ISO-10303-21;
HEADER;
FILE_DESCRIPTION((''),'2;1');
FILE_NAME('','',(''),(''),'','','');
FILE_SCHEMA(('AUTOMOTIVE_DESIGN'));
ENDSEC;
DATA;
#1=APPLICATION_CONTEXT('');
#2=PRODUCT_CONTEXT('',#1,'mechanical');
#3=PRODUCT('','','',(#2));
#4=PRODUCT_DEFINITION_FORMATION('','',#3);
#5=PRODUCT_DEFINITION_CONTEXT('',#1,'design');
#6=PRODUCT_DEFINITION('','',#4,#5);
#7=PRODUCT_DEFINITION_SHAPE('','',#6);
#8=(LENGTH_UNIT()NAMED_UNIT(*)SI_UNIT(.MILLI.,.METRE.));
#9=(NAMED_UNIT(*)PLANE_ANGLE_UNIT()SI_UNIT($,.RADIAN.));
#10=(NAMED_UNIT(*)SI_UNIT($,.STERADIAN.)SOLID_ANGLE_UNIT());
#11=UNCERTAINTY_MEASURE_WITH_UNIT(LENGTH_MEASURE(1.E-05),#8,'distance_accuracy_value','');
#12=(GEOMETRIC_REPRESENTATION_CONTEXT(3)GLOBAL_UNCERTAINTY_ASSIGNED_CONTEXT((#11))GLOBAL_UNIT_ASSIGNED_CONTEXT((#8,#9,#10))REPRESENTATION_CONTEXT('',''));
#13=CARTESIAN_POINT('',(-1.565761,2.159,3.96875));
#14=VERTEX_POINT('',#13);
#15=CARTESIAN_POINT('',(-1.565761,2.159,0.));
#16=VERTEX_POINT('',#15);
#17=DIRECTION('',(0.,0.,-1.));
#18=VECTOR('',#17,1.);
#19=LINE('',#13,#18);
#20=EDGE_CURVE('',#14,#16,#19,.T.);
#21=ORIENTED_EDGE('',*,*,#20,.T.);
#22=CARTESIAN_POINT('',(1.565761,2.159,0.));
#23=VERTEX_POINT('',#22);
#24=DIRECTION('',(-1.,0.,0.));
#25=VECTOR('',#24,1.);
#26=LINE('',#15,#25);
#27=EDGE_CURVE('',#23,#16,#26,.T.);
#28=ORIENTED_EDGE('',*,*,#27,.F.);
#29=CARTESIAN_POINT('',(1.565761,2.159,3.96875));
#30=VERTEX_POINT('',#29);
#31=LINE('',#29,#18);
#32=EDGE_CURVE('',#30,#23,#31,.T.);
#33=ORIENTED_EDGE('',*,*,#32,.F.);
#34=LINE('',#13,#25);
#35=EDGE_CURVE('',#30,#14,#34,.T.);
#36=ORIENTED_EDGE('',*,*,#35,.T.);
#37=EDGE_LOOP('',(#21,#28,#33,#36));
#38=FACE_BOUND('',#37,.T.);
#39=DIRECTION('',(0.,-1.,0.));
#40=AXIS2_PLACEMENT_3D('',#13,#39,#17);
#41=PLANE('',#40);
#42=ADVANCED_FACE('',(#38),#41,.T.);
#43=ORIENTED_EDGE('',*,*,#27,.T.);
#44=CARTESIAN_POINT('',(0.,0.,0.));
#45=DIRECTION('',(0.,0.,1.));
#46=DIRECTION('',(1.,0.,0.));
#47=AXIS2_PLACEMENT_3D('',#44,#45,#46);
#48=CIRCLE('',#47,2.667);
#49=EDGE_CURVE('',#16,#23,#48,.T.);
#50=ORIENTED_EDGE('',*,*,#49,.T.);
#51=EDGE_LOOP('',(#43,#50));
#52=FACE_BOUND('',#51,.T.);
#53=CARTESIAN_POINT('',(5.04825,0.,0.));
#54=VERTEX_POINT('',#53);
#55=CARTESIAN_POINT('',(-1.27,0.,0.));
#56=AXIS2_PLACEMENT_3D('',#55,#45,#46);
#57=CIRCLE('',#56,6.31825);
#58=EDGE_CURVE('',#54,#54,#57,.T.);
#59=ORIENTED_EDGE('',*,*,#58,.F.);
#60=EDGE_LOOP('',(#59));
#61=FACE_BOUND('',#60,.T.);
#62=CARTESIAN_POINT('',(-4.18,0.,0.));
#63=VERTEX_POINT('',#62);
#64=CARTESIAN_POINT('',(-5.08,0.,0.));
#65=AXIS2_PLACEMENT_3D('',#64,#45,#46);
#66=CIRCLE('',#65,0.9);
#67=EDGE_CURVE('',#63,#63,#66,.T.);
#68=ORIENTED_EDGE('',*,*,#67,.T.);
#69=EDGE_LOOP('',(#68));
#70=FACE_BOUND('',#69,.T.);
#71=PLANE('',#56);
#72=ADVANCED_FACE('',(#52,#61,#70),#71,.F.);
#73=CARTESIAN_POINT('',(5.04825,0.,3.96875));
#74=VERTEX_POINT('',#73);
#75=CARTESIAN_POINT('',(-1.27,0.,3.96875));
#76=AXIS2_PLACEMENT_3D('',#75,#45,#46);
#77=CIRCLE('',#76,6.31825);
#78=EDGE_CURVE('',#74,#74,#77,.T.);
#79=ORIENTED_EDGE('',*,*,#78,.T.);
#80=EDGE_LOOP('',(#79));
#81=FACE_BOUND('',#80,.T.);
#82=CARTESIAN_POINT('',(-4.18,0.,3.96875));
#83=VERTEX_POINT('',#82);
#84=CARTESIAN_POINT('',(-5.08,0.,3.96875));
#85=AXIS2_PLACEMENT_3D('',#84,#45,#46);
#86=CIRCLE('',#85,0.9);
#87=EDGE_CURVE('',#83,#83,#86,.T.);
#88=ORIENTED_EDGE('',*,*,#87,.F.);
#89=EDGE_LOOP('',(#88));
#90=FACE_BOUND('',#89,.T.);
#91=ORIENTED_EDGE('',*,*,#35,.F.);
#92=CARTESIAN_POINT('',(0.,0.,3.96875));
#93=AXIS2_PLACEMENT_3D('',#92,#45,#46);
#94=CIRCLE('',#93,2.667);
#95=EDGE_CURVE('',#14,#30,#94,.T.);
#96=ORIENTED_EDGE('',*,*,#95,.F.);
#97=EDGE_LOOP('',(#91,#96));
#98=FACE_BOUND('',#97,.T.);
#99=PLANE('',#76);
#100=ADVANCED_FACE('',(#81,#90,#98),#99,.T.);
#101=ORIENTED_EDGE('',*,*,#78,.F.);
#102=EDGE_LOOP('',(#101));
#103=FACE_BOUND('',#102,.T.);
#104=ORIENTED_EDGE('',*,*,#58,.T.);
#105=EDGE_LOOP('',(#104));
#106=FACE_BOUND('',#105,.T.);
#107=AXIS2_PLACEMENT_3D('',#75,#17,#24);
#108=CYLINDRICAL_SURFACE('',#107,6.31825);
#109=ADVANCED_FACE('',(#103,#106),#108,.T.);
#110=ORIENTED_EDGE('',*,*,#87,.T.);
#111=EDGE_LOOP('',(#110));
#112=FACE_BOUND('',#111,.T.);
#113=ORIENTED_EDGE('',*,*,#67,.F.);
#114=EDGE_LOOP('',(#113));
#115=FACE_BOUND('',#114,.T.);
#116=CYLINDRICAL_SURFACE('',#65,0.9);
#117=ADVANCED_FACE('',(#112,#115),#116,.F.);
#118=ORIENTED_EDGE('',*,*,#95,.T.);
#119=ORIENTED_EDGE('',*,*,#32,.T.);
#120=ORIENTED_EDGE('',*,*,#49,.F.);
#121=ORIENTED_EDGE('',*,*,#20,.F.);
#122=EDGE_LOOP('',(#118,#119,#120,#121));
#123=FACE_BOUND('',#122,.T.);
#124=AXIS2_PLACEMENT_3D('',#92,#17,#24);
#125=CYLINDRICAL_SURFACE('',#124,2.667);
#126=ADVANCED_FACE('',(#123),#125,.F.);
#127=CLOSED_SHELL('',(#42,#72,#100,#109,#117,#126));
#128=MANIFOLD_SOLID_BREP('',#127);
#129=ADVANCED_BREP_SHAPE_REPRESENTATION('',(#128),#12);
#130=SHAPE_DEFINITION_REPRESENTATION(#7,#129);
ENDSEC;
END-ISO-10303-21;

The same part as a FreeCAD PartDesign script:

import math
import FreeCAD as App
import Part
import Sketcher
from FreeCAD import Vector
Q = App.Units.Quantity

doc = App.newDocument("Part")
body = doc.addObject("PartDesign::Body", "Body")

# Sketch on XY plane
sketch1 = doc.addObject("Sketcher::SketchObject", "Sketch")
body.addObject(sketch1)
sketch1.AttachmentSupport = (doc.XY_Plane, [""])
sketch1.MapMode = "FlatFace"
sketch1.addGeometry([
    Part.Circle(Vector(-1.3, 0, 0), Vector(0, 0, 1), 6.3),
    Part.ArcOfCircle(Part.Circle(Vector(0, 0, 0), Vector(0, 0, 1), 2.7), math.radians(126), math.radians(414)),
    Part.LineSegment(Vector(-1.6, 2.2, 0), Vector(1.6, 2.2, 0)),
], False)
sketch1.addConstraint([
    Sketcher.Constraint("Coincident", 1, 1, 2, 1),
    Sketcher.Constraint("Coincident", 2, 2, 1, 2),
    Sketcher.Constraint("Horizontal", 2),
    Sketcher.Constraint("Coincident", 1, 3, -1, 1),
    Sketcher.Constraint("PointOnObject", 0, 3, -1),
    Sketcher.Constraint("Radius", 1, Q("0.105 in")),
    Sketcher.Constraint("Diameter", 0, Q("0.4975 in")),
    Sketcher.Constraint("DistanceX", 0, 3, -1, 1, Q("0.05 in")),
    Sketcher.Constraint("DistanceY", -1, 1, 1, 1, Q("0.085 in")),
])
pad1 = doc.addObject("PartDesign::Pad", "Pad")
body.addObject(pad1)
pad1.Profile = sketch1
pad1.Length = Q("0.15625 in")

# Sketch on XY plane
sketch2 = doc.addObject("Sketcher::SketchObject", "Sketch001")
body.addObject(sketch2)
sketch2.AttachmentSupport = (doc.XY_Plane, [""])
sketch2.MapMode = "FlatFace"
sketch2.AttachmentOffset = App.Placement(Vector(0, 0, 0.15625 * 25.4), App.Rotation())
sketch2.addGeometry(Part.Circle(Vector(-5.1, 0, 0), Vector(0, 0, 1), 0.9), False)
sketch2.addConstraint([
    Sketcher.Constraint("PointOnObject", 0, 3, -1),
    Sketcher.Constraint("DistanceX", 0, 3, -1, 1, Q("0.2 in")),
    Sketcher.Constraint("Diameter", 0, 1.8),
])
pocket1 = doc.addObject("PartDesign::Pocket", "Pocket")
body.addObject(pocket1)
pocket1.Profile = sketch2
pocket1.Type = "ThroughAll"

doc.recompute()
